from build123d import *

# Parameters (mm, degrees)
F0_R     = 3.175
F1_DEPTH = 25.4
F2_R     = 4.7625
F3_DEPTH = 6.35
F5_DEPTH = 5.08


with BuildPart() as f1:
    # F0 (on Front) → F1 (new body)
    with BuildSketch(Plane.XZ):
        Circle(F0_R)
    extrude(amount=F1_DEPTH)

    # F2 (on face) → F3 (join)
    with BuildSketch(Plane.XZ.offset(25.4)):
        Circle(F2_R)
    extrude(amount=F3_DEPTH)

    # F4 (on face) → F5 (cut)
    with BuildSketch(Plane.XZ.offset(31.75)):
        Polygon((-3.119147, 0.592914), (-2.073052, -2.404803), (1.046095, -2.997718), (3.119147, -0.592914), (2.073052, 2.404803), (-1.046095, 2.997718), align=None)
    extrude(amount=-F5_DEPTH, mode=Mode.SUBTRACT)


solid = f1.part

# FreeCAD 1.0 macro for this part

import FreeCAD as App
import Part
import Sketcher
Q = App.Units.Quantity


def add_polygon(sketch, points):
    """Adds a closed chain of lines whose ends are joined by coincident constraints."""
    first, n = sketch.GeometryCount, len(points)
    for a, b in zip(points, points[1:] + points[:1]):
        sketch.addGeometry(Part.LineSegment(App.Vector(*a, 0), App.Vector(*b, 0)), False)
    for i in range(n):
        sketch.addConstraint(Sketcher.Constraint("Coincident", first + i, 2, first + (i + 1) % n, 1))

doc = App.newDocument("Part")
body = doc.addObject("PartDesign::Body", "Body")

sketch1 = body.newObject("Sketcher::SketchObject", "Sketch")
sketch1.AttachmentSupport = (doc.getObject("XZ_Plane"), [""])
sketch1.MapMode = "FlatFace"
sketch1.addGeometry(Part.Circle(App.Vector(0, 0, 0), App.Vector(0, 0, 1), 3.2), False)
sketch1.addConstraint([
    Sketcher.Constraint("Coincident", 0, 3, -1, 1),
    Sketcher.Constraint("Diameter", 0, Q("0.25 in")),
])
pad1 = body.newObject("PartDesign::Pad", "Pad")
pad1.Profile = sketch1
pad1.Length = Q("1 in")

sketch2 = body.newObject("Sketcher::SketchObject", "Sketch001")
sketch2.AttachmentSupport = (doc.getObject("XZ_Plane"), [""])
sketch2.MapMode = "FlatFace"
sketch2.AttachmentOffset = App.Placement(App.Vector(0, 0, 1 * 25.4), App.Rotation())
sketch2.addGeometry(Part.Circle(App.Vector(0, 0, 0), App.Vector(0, 0, 1), 4.8), False)
sketch2.addConstraint([
    Sketcher.Constraint("Coincident", 0, 3, -1, 1),
    Sketcher.Constraint("Diameter", 0, Q("0.375 in")),
])
pad2 = body.newObject("PartDesign::Pad", "Pad001")
pad2.Profile = sketch2
pad2.Length = Q("0.25 in")

sketch3 = body.newObject("Sketcher::SketchObject", "Sketch002")
sketch3.AttachmentSupport = (doc.getObject("XZ_Plane"), [""])
sketch3.MapMode = "FlatFace"
sketch3.AttachmentOffset = App.Placement(App.Vector(0, 0, 1.25 * 25.4), App.Rotation())
add_polygon(sketch3, [(-3.1, 0.6), (-2.1, -2.4), (1, -3), (3.1, -0.6), (2.1, 2.4), (-1, 3)])
sketch3.addConstraint([
    Sketcher.Constraint("Symmetric", 0, 2, 3, 2, -1, 1),
    Sketcher.Constraint("Symmetric", 1, 2, 4, 2, -1, 1),
    Sketcher.Constraint("Symmetric", 2, 2, 5, 2, -1, 1),
    Sketcher.Constraint("Equal", 0, 1),
    Sketcher.Constraint("Equal", 1, 2),
    Sketcher.Constraint("Distance", 0, Q("0.125 in")),
    Sketcher.Constraint("DistanceX", 0, 2, 2, 2, Q("5.192199 mm")),
    Sketcher.Constraint("DistanceX", 1, 2, 2, 2, Q("2.073052 mm")),
    Sketcher.Constraint("DistanceY", 1, 2, 3, 2, Q("5.402521 mm")),
])
pocket1 = body.newObject("PartDesign::Pocket", "Pocket")
pocket1.Profile = sketch3
pocket1.Length = Q("0.2 in")

doc.recompute()
